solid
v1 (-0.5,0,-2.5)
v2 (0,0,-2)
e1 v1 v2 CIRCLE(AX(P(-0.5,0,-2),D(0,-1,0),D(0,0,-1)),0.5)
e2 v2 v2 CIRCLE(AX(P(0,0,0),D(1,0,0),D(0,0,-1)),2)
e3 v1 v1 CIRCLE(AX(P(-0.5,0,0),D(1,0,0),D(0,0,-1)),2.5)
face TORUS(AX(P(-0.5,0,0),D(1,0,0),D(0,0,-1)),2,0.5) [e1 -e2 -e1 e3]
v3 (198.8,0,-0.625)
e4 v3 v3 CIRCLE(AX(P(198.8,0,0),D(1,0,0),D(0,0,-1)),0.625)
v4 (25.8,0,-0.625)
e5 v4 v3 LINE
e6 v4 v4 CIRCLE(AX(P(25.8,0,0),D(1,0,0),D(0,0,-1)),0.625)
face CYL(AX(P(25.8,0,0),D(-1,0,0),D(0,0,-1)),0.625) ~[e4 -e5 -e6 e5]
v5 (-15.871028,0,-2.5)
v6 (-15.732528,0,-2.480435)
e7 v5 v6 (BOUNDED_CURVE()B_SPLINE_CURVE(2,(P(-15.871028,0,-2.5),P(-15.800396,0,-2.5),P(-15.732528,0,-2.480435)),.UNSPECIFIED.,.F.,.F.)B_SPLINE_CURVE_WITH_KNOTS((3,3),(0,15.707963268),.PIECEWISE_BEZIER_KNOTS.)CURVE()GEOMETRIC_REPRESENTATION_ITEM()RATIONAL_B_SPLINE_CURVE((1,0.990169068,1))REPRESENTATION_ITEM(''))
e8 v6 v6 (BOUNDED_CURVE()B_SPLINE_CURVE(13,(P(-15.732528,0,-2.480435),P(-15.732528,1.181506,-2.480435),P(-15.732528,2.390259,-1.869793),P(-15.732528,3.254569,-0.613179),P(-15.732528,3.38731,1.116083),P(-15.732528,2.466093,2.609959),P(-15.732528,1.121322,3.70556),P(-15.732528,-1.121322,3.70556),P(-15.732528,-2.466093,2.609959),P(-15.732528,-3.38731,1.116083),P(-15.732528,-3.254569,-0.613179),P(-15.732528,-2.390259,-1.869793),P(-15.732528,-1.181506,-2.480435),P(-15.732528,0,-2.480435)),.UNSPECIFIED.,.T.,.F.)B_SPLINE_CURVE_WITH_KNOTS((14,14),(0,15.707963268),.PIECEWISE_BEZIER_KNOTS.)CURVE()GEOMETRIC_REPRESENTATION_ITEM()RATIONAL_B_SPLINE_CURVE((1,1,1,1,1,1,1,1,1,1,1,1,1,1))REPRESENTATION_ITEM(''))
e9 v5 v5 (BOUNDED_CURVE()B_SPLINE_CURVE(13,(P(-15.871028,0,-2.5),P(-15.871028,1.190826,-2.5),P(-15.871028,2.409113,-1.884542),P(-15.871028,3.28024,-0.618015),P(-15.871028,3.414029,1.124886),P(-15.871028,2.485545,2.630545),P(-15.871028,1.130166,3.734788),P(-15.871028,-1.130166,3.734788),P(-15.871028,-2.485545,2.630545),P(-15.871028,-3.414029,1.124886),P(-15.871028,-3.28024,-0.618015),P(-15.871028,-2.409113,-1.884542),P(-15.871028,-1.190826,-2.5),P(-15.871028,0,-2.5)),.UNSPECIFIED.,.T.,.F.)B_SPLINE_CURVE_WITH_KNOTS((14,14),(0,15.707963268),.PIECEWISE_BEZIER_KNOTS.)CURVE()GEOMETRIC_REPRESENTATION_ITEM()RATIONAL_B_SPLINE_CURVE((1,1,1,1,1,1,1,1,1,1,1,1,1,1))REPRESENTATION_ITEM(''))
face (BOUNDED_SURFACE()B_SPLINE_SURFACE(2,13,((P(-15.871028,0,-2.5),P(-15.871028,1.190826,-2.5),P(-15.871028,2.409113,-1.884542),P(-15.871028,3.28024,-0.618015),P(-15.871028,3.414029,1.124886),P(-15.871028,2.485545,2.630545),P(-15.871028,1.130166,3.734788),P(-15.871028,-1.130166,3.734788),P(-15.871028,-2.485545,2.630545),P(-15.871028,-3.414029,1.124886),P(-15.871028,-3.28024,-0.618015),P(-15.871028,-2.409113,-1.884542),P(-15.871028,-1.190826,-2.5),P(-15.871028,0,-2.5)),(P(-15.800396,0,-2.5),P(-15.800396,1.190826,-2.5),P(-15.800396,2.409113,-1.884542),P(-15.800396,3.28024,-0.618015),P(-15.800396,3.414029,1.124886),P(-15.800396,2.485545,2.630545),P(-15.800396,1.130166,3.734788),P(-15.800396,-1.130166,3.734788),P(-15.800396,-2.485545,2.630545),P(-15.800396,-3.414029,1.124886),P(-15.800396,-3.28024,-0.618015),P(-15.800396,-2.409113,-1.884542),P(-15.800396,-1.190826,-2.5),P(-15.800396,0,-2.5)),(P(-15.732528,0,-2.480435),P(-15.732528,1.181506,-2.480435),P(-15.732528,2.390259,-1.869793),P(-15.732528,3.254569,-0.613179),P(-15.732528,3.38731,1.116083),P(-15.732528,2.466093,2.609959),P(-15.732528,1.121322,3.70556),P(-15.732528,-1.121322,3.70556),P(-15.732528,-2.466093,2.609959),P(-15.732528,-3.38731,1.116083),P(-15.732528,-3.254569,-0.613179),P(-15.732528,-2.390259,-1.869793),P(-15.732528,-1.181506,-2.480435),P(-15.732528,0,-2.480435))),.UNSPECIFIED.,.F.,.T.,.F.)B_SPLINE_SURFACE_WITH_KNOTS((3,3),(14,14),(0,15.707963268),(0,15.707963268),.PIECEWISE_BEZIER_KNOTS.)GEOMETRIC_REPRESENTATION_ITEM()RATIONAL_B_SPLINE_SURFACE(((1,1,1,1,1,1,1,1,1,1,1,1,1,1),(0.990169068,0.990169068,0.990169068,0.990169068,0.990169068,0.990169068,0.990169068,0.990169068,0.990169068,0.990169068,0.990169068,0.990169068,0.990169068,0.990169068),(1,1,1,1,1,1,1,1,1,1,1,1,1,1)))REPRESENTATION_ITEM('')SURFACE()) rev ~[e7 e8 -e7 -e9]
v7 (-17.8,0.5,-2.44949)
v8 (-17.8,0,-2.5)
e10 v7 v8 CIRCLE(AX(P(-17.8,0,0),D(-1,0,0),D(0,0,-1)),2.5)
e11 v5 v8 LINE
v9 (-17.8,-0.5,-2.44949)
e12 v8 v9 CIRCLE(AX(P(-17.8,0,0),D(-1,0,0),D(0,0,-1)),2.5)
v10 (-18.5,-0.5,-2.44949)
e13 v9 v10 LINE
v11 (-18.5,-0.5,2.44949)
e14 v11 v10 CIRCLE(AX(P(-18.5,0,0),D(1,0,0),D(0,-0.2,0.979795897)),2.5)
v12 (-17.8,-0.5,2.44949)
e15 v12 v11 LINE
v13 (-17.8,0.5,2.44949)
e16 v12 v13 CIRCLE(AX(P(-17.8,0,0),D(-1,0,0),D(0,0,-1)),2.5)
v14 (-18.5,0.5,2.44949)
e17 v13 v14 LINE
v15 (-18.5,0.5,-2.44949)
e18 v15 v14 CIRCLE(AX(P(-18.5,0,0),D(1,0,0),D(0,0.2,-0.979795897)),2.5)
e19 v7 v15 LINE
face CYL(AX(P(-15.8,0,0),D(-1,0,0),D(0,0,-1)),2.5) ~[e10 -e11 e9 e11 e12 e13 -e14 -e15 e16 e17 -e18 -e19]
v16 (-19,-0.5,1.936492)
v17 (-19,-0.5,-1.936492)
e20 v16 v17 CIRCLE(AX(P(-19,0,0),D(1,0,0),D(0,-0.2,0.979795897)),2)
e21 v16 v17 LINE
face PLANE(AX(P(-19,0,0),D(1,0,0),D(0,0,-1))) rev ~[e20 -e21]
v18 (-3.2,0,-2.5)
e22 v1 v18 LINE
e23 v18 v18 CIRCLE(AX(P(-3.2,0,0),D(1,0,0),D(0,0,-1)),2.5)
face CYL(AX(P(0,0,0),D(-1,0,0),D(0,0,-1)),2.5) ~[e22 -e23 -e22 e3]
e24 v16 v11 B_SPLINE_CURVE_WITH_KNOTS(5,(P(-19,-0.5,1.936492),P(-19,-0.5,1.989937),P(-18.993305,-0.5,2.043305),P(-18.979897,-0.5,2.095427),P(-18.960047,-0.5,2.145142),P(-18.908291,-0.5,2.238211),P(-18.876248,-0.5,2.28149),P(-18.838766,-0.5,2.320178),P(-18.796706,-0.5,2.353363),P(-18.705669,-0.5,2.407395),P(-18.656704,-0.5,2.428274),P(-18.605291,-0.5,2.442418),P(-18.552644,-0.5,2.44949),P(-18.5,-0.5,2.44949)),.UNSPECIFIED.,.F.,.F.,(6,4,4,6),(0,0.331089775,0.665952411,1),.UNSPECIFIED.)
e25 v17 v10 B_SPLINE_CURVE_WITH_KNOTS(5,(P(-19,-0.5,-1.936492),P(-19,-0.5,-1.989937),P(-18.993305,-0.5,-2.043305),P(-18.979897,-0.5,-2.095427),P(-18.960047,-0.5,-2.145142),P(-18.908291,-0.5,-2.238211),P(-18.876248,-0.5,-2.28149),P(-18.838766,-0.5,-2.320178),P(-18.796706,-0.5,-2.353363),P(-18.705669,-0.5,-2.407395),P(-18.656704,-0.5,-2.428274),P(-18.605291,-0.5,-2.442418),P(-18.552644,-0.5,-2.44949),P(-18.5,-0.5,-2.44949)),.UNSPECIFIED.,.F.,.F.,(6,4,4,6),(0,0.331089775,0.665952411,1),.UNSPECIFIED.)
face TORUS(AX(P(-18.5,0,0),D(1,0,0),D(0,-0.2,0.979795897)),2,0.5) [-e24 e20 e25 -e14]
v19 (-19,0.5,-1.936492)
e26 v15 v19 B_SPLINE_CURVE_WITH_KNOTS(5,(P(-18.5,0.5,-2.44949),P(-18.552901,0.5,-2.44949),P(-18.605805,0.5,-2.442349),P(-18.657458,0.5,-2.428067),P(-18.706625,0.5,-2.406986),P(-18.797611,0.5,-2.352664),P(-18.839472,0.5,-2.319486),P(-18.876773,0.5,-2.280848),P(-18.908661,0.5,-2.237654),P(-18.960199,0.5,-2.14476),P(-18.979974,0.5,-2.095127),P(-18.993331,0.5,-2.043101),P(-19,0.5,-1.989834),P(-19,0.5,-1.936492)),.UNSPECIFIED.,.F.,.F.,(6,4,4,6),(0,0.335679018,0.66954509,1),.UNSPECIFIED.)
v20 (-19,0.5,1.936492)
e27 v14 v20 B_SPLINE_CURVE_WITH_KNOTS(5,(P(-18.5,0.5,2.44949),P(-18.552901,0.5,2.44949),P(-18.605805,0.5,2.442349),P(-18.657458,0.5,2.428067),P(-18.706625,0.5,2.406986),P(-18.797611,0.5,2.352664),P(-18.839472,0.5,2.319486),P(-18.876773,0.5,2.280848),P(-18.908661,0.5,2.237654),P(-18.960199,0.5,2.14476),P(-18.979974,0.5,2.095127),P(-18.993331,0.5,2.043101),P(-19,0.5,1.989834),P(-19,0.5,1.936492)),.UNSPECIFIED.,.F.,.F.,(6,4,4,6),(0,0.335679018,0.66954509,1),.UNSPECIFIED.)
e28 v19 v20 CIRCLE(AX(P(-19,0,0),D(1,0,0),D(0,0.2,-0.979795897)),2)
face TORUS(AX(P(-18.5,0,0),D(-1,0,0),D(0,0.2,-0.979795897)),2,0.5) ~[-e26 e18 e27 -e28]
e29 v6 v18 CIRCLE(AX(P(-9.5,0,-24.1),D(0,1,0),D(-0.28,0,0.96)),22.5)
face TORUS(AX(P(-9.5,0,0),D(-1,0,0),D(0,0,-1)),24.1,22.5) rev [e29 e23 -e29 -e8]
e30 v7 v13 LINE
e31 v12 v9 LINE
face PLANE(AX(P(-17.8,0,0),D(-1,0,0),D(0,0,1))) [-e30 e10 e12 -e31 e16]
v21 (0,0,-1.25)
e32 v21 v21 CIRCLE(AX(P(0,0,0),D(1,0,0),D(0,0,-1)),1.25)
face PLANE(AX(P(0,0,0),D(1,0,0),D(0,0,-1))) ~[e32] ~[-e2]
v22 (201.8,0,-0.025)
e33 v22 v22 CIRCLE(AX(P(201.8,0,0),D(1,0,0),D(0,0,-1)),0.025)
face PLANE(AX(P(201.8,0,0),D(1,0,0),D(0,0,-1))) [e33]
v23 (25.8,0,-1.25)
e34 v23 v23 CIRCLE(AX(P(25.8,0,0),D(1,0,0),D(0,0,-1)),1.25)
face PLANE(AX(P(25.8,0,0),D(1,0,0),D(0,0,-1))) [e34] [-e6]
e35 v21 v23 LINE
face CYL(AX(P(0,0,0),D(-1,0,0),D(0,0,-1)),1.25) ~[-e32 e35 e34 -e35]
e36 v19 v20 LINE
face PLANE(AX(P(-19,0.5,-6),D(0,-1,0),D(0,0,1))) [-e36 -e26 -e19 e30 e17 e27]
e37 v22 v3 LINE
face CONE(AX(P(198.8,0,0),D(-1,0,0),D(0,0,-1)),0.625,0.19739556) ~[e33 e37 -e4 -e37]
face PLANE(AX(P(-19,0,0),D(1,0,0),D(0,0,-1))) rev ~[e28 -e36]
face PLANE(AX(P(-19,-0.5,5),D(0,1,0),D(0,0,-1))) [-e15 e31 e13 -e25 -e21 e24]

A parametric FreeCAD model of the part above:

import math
import FreeCAD as App
import Part
import Sketcher
from FreeCAD import Vector


def edges_at(feature, points):
    """Names of the edges that pass closest to the given points."""
    edges = feature.Shape.Edges
    near = lambda p: min(range(len(edges)), key=lambda i: edges[i].distToShape(Part.Vertex(*p))[0])
    return sorted({f"Edge{near(p) + 1}" for p in points})


def add_polygon(sketch, points):
    """Adds a closed chain of lines whose ends are joined by coincident constraints."""
    first, n = sketch.GeometryCount, len(points)
    for a, b in zip(points, points[1:] + points[:1]):
        sketch.addGeometry(Part.LineSegment(App.Vector(*a, 0), App.Vector(*b, 0)), False)
    for i in range(n):
        sketch.addConstraint(Sketcher.Constraint("Coincident", first + i, 2, first + (i + 1) % n, 1))

doc = App.newDocument("Part")
body = doc.addObject("PartDesign::Body", "Body")

# Sketch on XZ plane
sketch1 = doc.addObject("Sketcher::SketchObject", "Sketch")
body.addObject(sketch1)
sketch1.AttachmentSupport = (doc.XZ_Plane, [""])
sketch1.MapMode = "FlatFace"
sketch1.addGeometry(Part.LineSegment(Vector(-19, 0, 0), Vector(0, 0, 0)), False)
sketch1.addGeometry(Part.LineSegment(Vector(0, 0, 0), Vector(0, -2.5, 0)), False)
sketch1.addGeometry(Part.LineSegment(Vector(0, -2.5, 0), Vector(-3.2, -2.5, 0)), False)
sketch1.addGeometry(Part.ArcOfCircle(Part.Circle(Vector(-9.5, -24.1, 0), Vector(0, 0, 1), 22.5), math.radians(74), math.radians(106)), False)
sketch1.addGeometry(Part.LineSegment(Vector(-15.8, -2.5, 0), Vector(-19, -2.5, 0)), False)
sketch1.addGeometry(Part.LineSegment(Vector(-19, -2.5, 0), Vector(-19, 0, 0)), False)
sketch1.addConstraint(Sketcher.Constraint("Coincident", 0, 2, 1, 1))
sketch1.addConstraint(Sketcher.Constraint("Coincident", 1, 2, 2, 1))
sketch1.addConstraint(Sketcher.Constraint("Coincident", 2, 2, 3, 1))
sketch1.addConstraint(Sketcher.Constraint("Coincident", 3, 2, 4, 1))
sketch1.addConstraint(Sketcher.Constraint("Coincident", 4, 2, 5, 1))
sketch1.addConstraint(Sketcher.Constraint("Coincident", 5, 2, 0, 1))
sketch1.addConstraint(Sketcher.Constraint("Horizontal", 0))
sketch1.addConstraint(Sketcher.Constraint("Vertical", 1))
sketch1.addConstraint(Sketcher.Constraint("Horizontal", 2))
sketch1.addConstraint(Sketcher.Constraint("Horizontal", 4))
sketch1.addConstraint(Sketcher.Constraint("Vertical", 5))
sketch1.addConstraint(Sketcher.Constraint("Coincident", 0, 2, -1, 1))
sketch1.addConstraint(Sketcher.Constraint("Horizontal", 2, 2, 3, 2))
sketch1.addConstraint(Sketcher.Constraint("Equal", 2, 4))
sketch1.addConstraint(Sketcher.Constraint("DistanceX", 0, 1, 0, 2, 19.0))
sketch1.addConstraint(Sketcher.Constraint("DistanceX", 2, 2, 2, 1, 3.2))
sketch1.addConstraint(Sketcher.Constraint("DistanceY", 1, 2, 1, 1, 2.5))
sketch1.addConstraint(Sketcher.Constraint("Radius", 3, 22.5))
revolution = doc.addObject("PartDesign::Revolution", "Revolution")
body.addObject(revolution)
revolution.Profile = sketch1
revolution.ReferenceAxis = (sketch1, ["H_Axis"])
revolution.Angle = 360

# Sketch on YZ plane
sketch2 = doc.addObject("Sketcher::SketchObject", "Sketch001")
body.addObject(sketch2)
sketch2.AttachmentSupport = (doc.YZ_Plane, [""])
sketch2.MapMode = "FlatFace"
sketch2.AttachmentOffset = App.Placement(Vector(0, 0, -19), App.Rotation())
add_polygon(sketch2, [(-0.5, -6), (-0.5, 5), (0.5, 5), (0.5, -6)])  # lines 0-3
sketch2.addConstraint(Sketcher.Constraint("Vertical", 0))
sketch2.addConstraint(Sketcher.Constraint("Horizontal", 1))
sketch2.addConstraint(Sketcher.Constraint("Vertical", 2))
sketch2.addConstraint(Sketcher.Constraint("Horizontal", 3))
sketch2.addConstraint(Sketcher.Constraint("DistanceX", 0, 2, -1, 1, 0.5))
sketch2.addConstraint(Sketcher.Constraint("DistanceX", -1, 1, 1, 2, 0.5))
sketch2.addConstraint(Sketcher.Constraint("DistanceY", 0, 1, 0, 2, 11.0))
sketch2.addConstraint(Sketcher.Constraint("DistanceY", -1, 1, 0, 2, 5.0))
pocket1 = doc.addObject("PartDesign::Pocket", "Pocket")
body.addObject(pocket1)
pocket1.Profile = sketch2
pocket1.Length = 1.2
pocket1.Reversed = True
doc.recompute()

fillet = doc.addObject("PartDesign::Fillet", "Fillet")
body.addObject(fillet)
fillet.Base = (pocket1, edges_at(pocket1, [
    (-15.8, 0, 2.5),
    (-19, 2.5, 0),
    (-19, -2.5, 0),
    (0, 0, 2.5),
]))
fillet.Radius = 0.5

# Sketch on YZ plane
sketch3 = doc.addObject("Sketcher::SketchObject", "Sketch002")
body.addObject(sketch3)
sketch3.AttachmentSupport = (doc.YZ_Plane, [""])
sketch3.MapMode = "FlatFace"
sketch3.addGeometry(Part.Circle(Vector(0, 0, 0), Vector(0, 0, 1), 1.2), False)
sketch3.addConstraint(Sketcher.Constraint("Coincident", 0, 3, -1, 1))
sketch3.addConstraint(Sketcher.Constraint("Diameter", 0, 2.5))
pad1 = doc.addObject("PartDesign::Pad", "Pad")
body.addObject(pad1)
pad1.Profile = sketch3
pad1.Length = 25.8

# Sketch on YZ plane
sketch4 = doc.addObject("Sketcher::SketchObject", "Sketch003")
body.addObject(sketch4)
sketch4.AttachmentSupport = (doc.YZ_Plane, [""])
sketch4.MapMode = "FlatFace"
sketch4.AttachmentOffset = App.Placement(Vector(0, 0, 25.8), App.Rotation())
sketch4.addGeometry(Part.Circle(Vector(0, 0, 0), Vector(0, 0, 1), 0.6), False)
sketch4.addConstraint(Sketcher.Constraint("Coincident", 0, 3, -1, 1))
sketch4.addConstraint(Sketcher.Constraint("Diameter", 0, 1.25))
pad2 = doc.addObject("PartDesign::Pad", "Pad001")
body.addObject(pad2)
pad2.Profile = sketch4
pad2.Length = 176
doc.recompute()

chamfer = doc.addObject("PartDesign::Chamfer", "Chamfer")
body.addObject(chamfer)
chamfer.Base = (pad2, edges_at(pad2, [(201.8, 0, 0.625)]))
chamfer.ChamferType = "Two distances"
chamfer.Size = 0.6
chamfer.Size2 = 3
chamfer.FlipDirection = True

doc.recompute()
